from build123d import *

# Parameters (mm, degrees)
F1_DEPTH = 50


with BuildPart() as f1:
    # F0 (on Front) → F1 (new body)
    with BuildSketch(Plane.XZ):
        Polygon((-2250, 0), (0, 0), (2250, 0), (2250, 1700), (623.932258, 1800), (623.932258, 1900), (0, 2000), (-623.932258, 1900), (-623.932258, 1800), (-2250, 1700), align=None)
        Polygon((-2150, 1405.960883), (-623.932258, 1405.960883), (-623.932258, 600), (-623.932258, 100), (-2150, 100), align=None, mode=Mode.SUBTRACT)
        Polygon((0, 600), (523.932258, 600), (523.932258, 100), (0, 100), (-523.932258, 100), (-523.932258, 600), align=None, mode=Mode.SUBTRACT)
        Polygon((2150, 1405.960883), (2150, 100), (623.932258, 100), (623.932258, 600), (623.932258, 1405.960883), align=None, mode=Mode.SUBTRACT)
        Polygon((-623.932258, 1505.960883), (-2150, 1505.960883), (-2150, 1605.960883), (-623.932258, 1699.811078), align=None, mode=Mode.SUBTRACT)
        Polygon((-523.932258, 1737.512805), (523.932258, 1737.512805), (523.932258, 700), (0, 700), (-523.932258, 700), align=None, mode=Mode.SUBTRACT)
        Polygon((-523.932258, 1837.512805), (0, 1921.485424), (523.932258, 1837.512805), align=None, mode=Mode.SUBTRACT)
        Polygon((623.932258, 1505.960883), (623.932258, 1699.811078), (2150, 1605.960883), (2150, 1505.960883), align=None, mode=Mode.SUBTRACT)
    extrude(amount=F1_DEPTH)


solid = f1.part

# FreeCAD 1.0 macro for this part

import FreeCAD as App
import Part
import Sketcher

V = App.Vector
Q = App.Units.Quantity

doc = App.newDocument("Part")
body = doc.addObject("PartDesign::Body", "Body")

sketch1 = body.newObject("Sketcher::SketchObject", "Sketch")
sketch1.AttachmentSupport = (doc.getObject("XZ_Plane"), [""])
sketch1.MapMode = "FlatFace"
sketch1.addGeometry(Part.LineSegment(V(-2250, 0, 0), V(2250, 0, 0)), False)
sketch1.addGeometry(Part.LineSegment(V(2250, 0, 0), V(2250, 1700, 0)), False)
sketch1.addGeometry(Part.LineSegment(V(2250, 1700, 0), V(624, 1800, 0)), False)
sketch1.addGeometry(Part.LineSegment(V(624, 1800, 0), V(624, 1900, 0)), False)
sketch1.addGeometry(Part.LineSegment(V(624, 1900, 0), V(0, 2000, 0)), False)
sketch1.addGeometry(Part.LineSegment(V(0, 2000, 0), V(-624, 1900, 0)), False)
sketch1.addGeometry(Part.LineSegment(V(-624, 1900, 0), V(-624, 1800, 0)), False)
sketch1.addGeometry(Part.LineSegment(V(-624, 1800, 0), V(-2250, 1700, 0)), False)
sketch1.addGeometry(Part.LineSegment(V(-2250, 1700, 0), V(-2250, 0, 0)), False)
sketch1.addGeometry(Part.LineSegment(V(-2150, 100, 0), V(-2150, 1406, 0)), False)
sketch1.addGeometry(Part.LineSegment(V(-2150, 1406, 0), V(-624, 1406, 0)), False)
sketch1.addGeometry(Part.LineSegment(V(-624, 1406, 0), V(-624, 100, 0)), False)
sketch1.addGeometry(Part.LineSegment(V(-624, 100, 0), V(-2150, 100, 0)), False)
sketch1.addGeometry(Part.LineSegment(V(-524, 600, 0), V(524, 600, 0)), False)
sketch1.addGeometry(Part.LineSegment(V(524, 600, 0), V(524, 100, 0)), False)
sketch1.addGeometry(Part.LineSegment(V(524, 100, 0), V(-524, 100, 0)), False)
sketch1.addGeometry(Part.LineSegment(V(-524, 100, 0), V(-524, 600, 0)), False)
sketch1.addGeometry(Part.LineSegment(V(624, 1406, 0), V(2150, 1406, 0)), False)
sketch1.addGeometry(Part.LineSegment(V(2150, 1406, 0), V(2150, 100, 0)), False)
sketch1.addGeometry(Part.LineSegment(V(2150, 100, 0), V(624, 100, 0)), False)
sketch1.addGeometry(Part.LineSegment(V(624, 100, 0), V(624, 1406, 0)), False)
sketch1.addGeometry(Part.LineSegment(V(-624, 1700, 0), V(-624, 1506, 0)), False)
sketch1.addGeometry(Part.LineSegment(V(-624, 1506, 0), V(-2150, 1506, 0)), False)
sketch1.addGeometry(Part.LineSegment(V(-2150, 1506, 0), V(-2150, 1606, 0)), False)
sketch1.addGeometry(Part.LineSegment(V(-2150, 1606, 0), V(-624, 1700, 0)), False)
sketch1.addGeometry(Part.LineSegment(V(-524, 700, 0), V(-524, 1738, 0)), False)
sketch1.addGeometry(Part.LineSegment(V(-524, 1738, 0), V(524, 1738, 0)), False)
sketch1.addGeometry(Part.LineSegment(V(524, 1738, 0), V(524, 700, 0)), False)
sketch1.addGeometry(Part.LineSegment(V(524, 700, 0), V(-524, 700, 0)), False)
sketch1.addGeometry(Part.LineSegment(V(524, 1838, 0), V(-524, 1838, 0)), False)
sketch1.addGeometry(Part.LineSegment(V(-524, 1838, 0), V(0, 1921, 0)), False)
sketch1.addGeometry(Part.LineSegment(V(0, 1921, 0), V(524, 1838, 0)), False)
sketch1.addGeometry(Part.LineSegment(V(2150, 1506, 0), V(624, 1506, 0)), False)
sketch1.addGeometry(Part.LineSegment(V(624, 1506, 0), V(624, 1700, 0)), False)
sketch1.addGeometry(Part.LineSegment(V(624, 1700, 0), V(2150, 1606, 0)), False)
sketch1.addGeometry(Part.LineSegment(V(2150, 1606, 0), V(2150, 1506, 0)), False)
sketch1.addConstraint(Sketcher.Constraint("Coincident", 0, 2, 1, 1))
sketch1.addConstraint(Sketcher.Constraint("Coincident", 1, 2, 2, 1))
sketch1.addConstraint(Sketcher.Constraint("Coincident", 2, 2, 3, 1))
sketch1.addConstraint(Sketcher.Constraint("Coincident", 3, 2, 4, 1))
sketch1.addConstraint(Sketcher.Constraint("Coincident", 4, 2, 5, 1))
sketch1.addConstraint(Sketcher.Constraint("Coincident", 5, 2, 6, 1))
sketch1.addConstraint(Sketcher.Constraint("Coincident", 6, 2, 7, 1))
sketch1.addConstraint(Sketcher.Constraint("Coincident", 7, 2, 8, 1))
sketch1.addConstraint(Sketcher.Constraint("Coincident", 8, 2, 0, 1))
sketch1.addConstraint(Sketcher.Constraint("Coincident", 9, 2, 10, 1))
sketch1.addConstraint(Sketcher.Constraint("Coincident", 10, 2, 11, 1))
sketch1.addConstraint(Sketcher.Constraint("Coincident", 11, 2, 12, 1))
sketch1.addConstraint(Sketcher.Constraint("Coincident", 12, 2, 9, 1))
sketch1.addConstraint(Sketcher.Constraint("Coincident", 13, 2, 14, 1))
sketch1.addConstraint(Sketcher.Constraint("Coincident", 14, 2, 15, 1))
sketch1.addConstraint(Sketcher.Constraint("Coincident", 15, 2, 16, 1))
sketch1.addConstraint(Sketcher.Constraint("Coincident", 16, 2, 13, 1))
sketch1.addConstraint(Sketcher.Constraint("Coincident", 17, 2, 18, 1))
sketch1.addConstraint(Sketcher.Constraint("Coincident", 18, 2, 19, 1))
sketch1.addConstraint(Sketcher.Constraint("Coincident", 19, 2, 20, 1))
sketch1.addConstraint(Sketcher.Constraint("Coincident", 20, 2, 17, 1))
sketch1.addConstraint(Sketcher.Constraint("Coincident", 21, 2, 22, 1))
sketch1.addConstraint(Sketcher.Constraint("Coincident", 22, 2, 23, 1))
sketch1.addConstraint(Sketcher.Constraint("Coincident", 23, 2, 24, 1))
sketch1.addConstraint(Sketcher.Constraint("Coincident", 24, 2, 21, 1))
sketch1.addConstraint(Sketcher.Constraint("Coincident", 25, 2, 26, 1))
sketch1.addConstraint(Sketcher.Constraint("Coincident", 26, 2, 27, 1))
sketch1.addConstraint(Sketcher.Constraint("Coincident", 27, 2, 28, 1))
sketch1.addConstraint(Sketcher.Constraint("Coincident", 28, 2, 25, 1))
sketch1.addConstraint(Sketcher.Constraint("Coincident", 29, 2, 30, 1))
sketch1.addConstraint(Sketcher.Constraint("Coincident", 30, 2, 31, 1))
sketch1.addConstraint(Sketcher.Constraint("Coincident", 31, 2, 29, 1))
sketch1.addConstraint(Sketcher.Constraint("Coincident", 32, 2, 33, 1))
sketch1.addConstraint(Sketcher.Constraint("Coincident", 33, 2, 34, 1))
sketch1.addConstraint(Sketcher.Constraint("Coincident", 34, 2, 35, 1))
sketch1.addConstraint(Sketcher.Constraint("Coincident", 35, 2, 32, 1))
sketch1.addConstraint(Sketcher.Constraint("Horizontal", 0))
sketch1.addConstraint(Sketcher.Constraint("Vertical", 1))
sketch1.addConstraint(Sketcher.Constraint("Vertical", 3))
sketch1.addConstraint(Sketcher.Constraint("Vertical", 6))
sketch1.addConstraint(Sketcher.Constraint("Vertical", 8))
sketch1.addConstraint(Sketcher.Constraint("Vertical", 9))
sketch1.addConstraint(Sketcher.Constraint("Horizontal", 10))
sketch1.addConstraint(Sketcher.Constraint("Vertical", 11))
sketch1.addConstraint(Sketcher.Constraint("Horizontal", 12))
sketch1.addConstraint(Sketcher.Constraint("Horizontal", 13))
sketch1.addConstraint(Sketcher.Constraint("Vertical", 14))
sketch1.addConstraint(Sketcher.Constraint("Horizontal", 15))
sketch1.addConstraint(Sketcher.Constraint("Vertical", 16))
sketch1.addConstraint(Sketcher.Constraint("Horizontal", 17))
sketch1.addConstraint(Sketcher.Constraint("Vertical", 18))
sketch1.addConstraint(Sketcher.Constraint("Horizontal", 19))
sketch1.addConstraint(Sketcher.Constraint("Vertical", 20))
sketch1.addConstraint(Sketcher.Constraint("Vertical", 21))
sketch1.addConstraint(Sketcher.Constraint("Horizontal", 22))
sketch1.addConstraint(Sketcher.Constraint("Vertical", 23))
sketch1.addConstraint(Sketcher.Constraint("Vertical", 25))
sketch1.addConstraint(Sketcher.Constraint("Horizontal", 26))
sketch1.addConstraint(Sketcher.Constraint("Vertical", 27))
sketch1.addConstraint(Sketcher.Constraint("Horizontal", 28))
sketch1.addConstraint(Sketcher.Constraint("Horizontal", 29))
sketch1.addConstraint(Sketcher.Constraint("Horizontal", 32))
sketch1.addConstraint(Sketcher.Constraint("Vertical", 33))
sketch1.addConstraint(Sketcher.Constraint("Vertical", 35))
sketch1.addConstraint(Sketcher.Constraint("Symmetric", 0, 2, 8, 2, -1, 1))
sketch1.addConstraint(Sketcher.Constraint("Symmetric", 3, 2, 5, 2, -2))
sketch1.addConstraint(Sketcher.Constraint("Symmetric", 9, 2, 17, 2, -2))
sketch1.addConstraint(Sketcher.Constraint("Symmetric", 11, 2, 19, 2, -2))
sketch1.addConstraint(Sketcher.Constraint("Symmetric", 21, 2, 32, 2, -2))
sketch1.addConstraint(Sketcher.Constraint("Symmetric", 23, 2, 34, 2, -2))
sketch1.addConstraint(Sketcher.Constraint("PointOnObject", 4, 2, -2))
sketch1.addConstraint(Sketcher.Constraint("PointOnObject", 30, 2, -2))
sketch1.addConstraint(Sketcher.Constraint("Parallel", 7, 24))
sketch1.addConstraint(Sketcher.Constraint("Parallel", 5, 30))
sketch1.addConstraint(Sketcher.Constraint("Parallel", 4, 31))
sketch1.addConstraint(Sketcher.Constraint("Parallel", 2, 34))
sketch1.addConstraint(Sketcher.Constraint("Horizontal", 2, 2, 6, 2))
sketch1.addConstraint(Sketcher.Constraint("Horizontal", 1, 2, 7, 2))
sketch1.addConstraint(Sketcher.Constraint("Horizontal", 12, 2, 14, 2))
sketch1.addConstraint(Sketcher.Constraint("Vertical", 6, 2, 10, 2))
sketch1.addConstraint(Sketcher.Constraint("Vertical", 11, 2, 21, 2))
sketch1.addConstraint(Sketcher.Constraint("Vertical", 12, 2, 22, 2))
sketch1.addConstraint(Sketcher.Constraint("Vertical", 16, 2, 25, 2))
sketch1.addConstraint(Sketcher.Constraint("Vertical", 14, 2, 26, 2))
sketch1.addConstraint(Sketcher.Constraint("Vertical", 28, 2, 29, 2))
sketch1.addConstraint(Sketcher.Constraint("Vertical", 27, 2, 31, 2))
sketch1.addConstraint(Sketcher.Constraint("Equal", 6, 23))
sketch1.addConstraint(Sketcher.Constraint("DistanceX", 0, 1, 0, 2, Q("4500 mm")))
sketch1.addConstraint(Sketcher.Constraint("DistanceY", 1, 1, 1, 2, Q("1700 mm")))
sketch1.addConstraint(Sketcher.Constraint("DistanceY", 3, 1, 3, 2, Q("100 mm")))
sketch1.addConstraint(Sketcher.Constraint("DistanceY", 14, 2, 14, 1, Q("500 mm")))
sketch1.addConstraint(Sketcher.Constraint("DistanceY", -1, 1, 2, 2, Q("1800 mm")))
sketch1.addConstraint(Sketcher.Constraint("DistanceY", -1, 1, 4, 2, Q("2000 mm")))
sketch1.addConstraint(Sketcher.Constraint("DistanceX", 9, 2, -1, 1, Q("2150 mm")))
sketch1.addConstraint(Sketcher.Constraint("DistanceY", -1, 1, 11, 2, Q("100 mm")))
sketch1.addConstraint(Sketcher.Constraint("DistanceY", -1, 1, 27, 2, Q("700 mm")))
sketch1.addConstraint(Sketcher.Constraint("DistanceX", 13, 2, 2, 2, Q("100 mm")))
sketch1.addConstraint(Sketcher.Constraint("DistanceY", 10, 2, 21, 2, Q("100 mm")))
sketch1.addConstraint(Sketcher.Constraint("DistanceY", 25, 2, 29, 2, Q("100 mm")))
sketch1.addConstraint(Sketcher.Constraint("DistanceX", 10, 1, 10, 2, Q("1526.067742 mm")))
sketch1.addConstraint(Sketcher.Constraint("DistanceY", 9, 1, 9, 2, Q("1305.960883 mm")))
sketch1.addConstraint(Sketcher.Constraint("DistanceY", 25, 1, 25, 2, Q("1037.512805 mm")))
pad1 = body.newObject("PartDesign::Pad", "Pad")
pad1.Profile = sketch1
pad1.Length = 50

doc.recompute()
